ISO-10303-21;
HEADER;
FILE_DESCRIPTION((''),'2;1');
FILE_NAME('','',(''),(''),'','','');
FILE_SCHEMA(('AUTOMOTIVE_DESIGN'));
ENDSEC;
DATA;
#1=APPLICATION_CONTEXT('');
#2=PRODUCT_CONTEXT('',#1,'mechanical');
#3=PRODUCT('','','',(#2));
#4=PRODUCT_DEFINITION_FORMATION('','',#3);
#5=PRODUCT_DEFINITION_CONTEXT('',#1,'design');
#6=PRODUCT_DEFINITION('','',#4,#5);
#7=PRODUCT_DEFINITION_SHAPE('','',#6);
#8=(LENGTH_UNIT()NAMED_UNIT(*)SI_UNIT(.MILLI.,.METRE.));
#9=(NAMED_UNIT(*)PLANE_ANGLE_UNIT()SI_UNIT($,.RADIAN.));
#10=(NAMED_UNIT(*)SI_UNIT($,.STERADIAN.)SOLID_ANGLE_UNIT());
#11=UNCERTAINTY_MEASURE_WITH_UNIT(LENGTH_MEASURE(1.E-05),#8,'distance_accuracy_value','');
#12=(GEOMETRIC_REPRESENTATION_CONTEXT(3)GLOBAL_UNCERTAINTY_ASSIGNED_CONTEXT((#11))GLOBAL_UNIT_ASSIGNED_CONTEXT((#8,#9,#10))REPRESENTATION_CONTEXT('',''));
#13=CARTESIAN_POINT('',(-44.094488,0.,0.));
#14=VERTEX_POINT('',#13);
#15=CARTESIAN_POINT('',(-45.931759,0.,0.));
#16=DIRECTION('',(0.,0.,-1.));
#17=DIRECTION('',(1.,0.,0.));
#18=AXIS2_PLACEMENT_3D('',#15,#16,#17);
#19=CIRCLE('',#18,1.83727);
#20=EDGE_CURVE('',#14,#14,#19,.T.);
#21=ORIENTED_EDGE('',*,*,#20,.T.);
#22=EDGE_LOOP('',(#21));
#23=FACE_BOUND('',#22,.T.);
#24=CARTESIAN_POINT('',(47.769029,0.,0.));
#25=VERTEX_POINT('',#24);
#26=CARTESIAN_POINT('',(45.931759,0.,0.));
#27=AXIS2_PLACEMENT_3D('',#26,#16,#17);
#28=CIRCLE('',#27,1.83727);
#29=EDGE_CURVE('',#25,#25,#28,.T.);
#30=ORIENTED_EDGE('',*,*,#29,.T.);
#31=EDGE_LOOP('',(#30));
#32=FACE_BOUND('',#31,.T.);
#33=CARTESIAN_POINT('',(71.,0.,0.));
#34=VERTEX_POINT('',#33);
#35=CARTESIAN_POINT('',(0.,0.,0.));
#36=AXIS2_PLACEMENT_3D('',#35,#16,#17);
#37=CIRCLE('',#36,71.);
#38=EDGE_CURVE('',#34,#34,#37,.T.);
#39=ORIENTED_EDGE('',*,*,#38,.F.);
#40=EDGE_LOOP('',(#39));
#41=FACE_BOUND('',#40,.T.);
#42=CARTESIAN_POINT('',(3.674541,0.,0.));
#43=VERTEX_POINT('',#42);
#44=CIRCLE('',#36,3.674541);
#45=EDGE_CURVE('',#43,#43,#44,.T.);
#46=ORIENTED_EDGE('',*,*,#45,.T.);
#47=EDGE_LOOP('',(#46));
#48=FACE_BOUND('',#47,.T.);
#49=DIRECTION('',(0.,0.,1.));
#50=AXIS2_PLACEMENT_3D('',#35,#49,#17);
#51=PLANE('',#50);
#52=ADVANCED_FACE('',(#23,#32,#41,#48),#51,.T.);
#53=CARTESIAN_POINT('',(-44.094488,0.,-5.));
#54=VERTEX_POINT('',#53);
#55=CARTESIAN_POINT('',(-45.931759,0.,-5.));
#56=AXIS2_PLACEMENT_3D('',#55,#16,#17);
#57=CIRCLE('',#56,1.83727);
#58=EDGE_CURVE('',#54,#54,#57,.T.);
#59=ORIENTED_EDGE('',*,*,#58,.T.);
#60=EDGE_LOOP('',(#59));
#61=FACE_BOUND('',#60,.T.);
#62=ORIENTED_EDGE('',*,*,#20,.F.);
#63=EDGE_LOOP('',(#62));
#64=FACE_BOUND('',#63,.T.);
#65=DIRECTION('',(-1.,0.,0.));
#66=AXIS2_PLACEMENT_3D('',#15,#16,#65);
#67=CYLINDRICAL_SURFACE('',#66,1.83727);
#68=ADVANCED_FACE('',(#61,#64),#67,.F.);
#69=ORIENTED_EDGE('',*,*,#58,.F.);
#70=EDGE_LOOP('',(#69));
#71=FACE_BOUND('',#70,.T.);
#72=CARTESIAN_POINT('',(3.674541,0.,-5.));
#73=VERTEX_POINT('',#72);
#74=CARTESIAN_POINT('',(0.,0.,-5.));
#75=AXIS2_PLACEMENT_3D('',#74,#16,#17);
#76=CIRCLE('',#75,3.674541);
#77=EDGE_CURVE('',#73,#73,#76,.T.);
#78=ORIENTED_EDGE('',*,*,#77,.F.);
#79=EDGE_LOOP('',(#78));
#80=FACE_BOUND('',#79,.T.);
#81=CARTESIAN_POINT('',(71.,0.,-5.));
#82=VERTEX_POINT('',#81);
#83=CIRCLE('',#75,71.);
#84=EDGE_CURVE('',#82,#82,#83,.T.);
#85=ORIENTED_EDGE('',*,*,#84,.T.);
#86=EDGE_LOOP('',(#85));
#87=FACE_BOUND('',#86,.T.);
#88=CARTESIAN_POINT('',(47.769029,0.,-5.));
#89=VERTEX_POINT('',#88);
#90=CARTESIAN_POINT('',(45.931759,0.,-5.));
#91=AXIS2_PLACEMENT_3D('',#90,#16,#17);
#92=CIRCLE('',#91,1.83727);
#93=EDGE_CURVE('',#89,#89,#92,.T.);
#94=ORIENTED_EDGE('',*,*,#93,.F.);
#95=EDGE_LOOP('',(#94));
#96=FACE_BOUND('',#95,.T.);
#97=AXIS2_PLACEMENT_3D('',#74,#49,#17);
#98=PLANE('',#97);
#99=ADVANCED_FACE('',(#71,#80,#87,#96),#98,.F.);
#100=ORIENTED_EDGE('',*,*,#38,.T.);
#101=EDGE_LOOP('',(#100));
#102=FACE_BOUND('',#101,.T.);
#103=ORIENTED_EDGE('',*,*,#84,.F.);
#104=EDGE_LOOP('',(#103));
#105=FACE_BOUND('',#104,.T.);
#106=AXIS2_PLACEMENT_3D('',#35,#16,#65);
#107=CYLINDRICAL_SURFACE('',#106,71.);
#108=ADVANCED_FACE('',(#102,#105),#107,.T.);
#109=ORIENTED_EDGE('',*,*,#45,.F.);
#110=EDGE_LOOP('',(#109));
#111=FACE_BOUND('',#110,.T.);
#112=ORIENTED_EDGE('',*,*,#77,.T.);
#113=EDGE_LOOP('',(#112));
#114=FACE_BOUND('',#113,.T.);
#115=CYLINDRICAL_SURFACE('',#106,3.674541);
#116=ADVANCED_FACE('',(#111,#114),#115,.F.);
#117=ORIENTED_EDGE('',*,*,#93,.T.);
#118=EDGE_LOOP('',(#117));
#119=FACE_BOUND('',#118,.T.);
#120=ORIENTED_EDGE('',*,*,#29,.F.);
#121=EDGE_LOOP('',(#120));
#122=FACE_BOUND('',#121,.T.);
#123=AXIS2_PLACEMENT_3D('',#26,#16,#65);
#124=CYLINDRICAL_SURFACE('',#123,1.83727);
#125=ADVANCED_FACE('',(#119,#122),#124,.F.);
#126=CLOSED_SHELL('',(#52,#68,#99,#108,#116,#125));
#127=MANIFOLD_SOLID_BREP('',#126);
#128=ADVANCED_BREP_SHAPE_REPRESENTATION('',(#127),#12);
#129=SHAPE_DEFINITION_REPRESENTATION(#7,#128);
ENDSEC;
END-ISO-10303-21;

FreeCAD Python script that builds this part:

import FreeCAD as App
import Part
import Sketcher

doc = App.newDocument("Part")
body = doc.addObject("PartDesign::Body", "Body")

# Sketch on XY plane
sketch1 = doc.addObject("Sketcher::SketchObject", "Sketch")
body.addObject(sketch1)
sketch1.AttachmentSupport = (doc.XY_Plane, [""])
sketch1.MapMode = "FlatFace"
sketch1.AttachmentOffset = App.Placement(App.Vector(0, 0, -5), App.Rotation())
sketch1.addGeometry(Part.Circle(App.Vector(0, 0, 0), App.Vector(0, 0, 1), 71), False)
sketch1.addGeometry(Part.Circle(App.Vector(-45.9, 0, 0), App.Vector(0, 0, 1), 1.8), False)
sketch1.addGeometry(Part.Circle(App.Vector(0, 0, 0), App.Vector(0, 0, 1), 3.7), False)
sketch1.addGeometry(Part.Circle(App.Vector(45.9, 0, 0), App.Vector(0, 0, 1), 1.8), False)
sketch1.addConstraint(Sketcher.Constraint("Coincident", 0, 3, -1, 1))
sketch1.addConstraint(Sketcher.Constraint("Coincident", 2, 3, -1, 1))
sketch1.addConstraint(Sketcher.Constraint("Equal", 1, 3))
sketch1.addConstraint(Sketcher.Constraint("Symmetric", 1, 3, 3, 3, -1, 1))
sketch1.addConstraint(Sketcher.Constraint("PointOnObject", 1, 3, -1))
sketch1.addConstraint(Sketcher.Constraint("Diameter", 0, 142.0))
sketch1.addConstraint(Sketcher.Constraint("Diameter", 1, 3.674541))
sketch1.addConstraint(Sketcher.Constraint("Diameter", 2, 7.349081))
sketch1.addConstraint(Sketcher.Constraint("DistanceX", 1, 3, -1, 1, 45.931759))
pad1 = doc.addObject("PartDesign::Pad", "Pad")
body.addObject(pad1)
pad1.Profile = sketch1
pad1.Length = 5

doc.recompute()
